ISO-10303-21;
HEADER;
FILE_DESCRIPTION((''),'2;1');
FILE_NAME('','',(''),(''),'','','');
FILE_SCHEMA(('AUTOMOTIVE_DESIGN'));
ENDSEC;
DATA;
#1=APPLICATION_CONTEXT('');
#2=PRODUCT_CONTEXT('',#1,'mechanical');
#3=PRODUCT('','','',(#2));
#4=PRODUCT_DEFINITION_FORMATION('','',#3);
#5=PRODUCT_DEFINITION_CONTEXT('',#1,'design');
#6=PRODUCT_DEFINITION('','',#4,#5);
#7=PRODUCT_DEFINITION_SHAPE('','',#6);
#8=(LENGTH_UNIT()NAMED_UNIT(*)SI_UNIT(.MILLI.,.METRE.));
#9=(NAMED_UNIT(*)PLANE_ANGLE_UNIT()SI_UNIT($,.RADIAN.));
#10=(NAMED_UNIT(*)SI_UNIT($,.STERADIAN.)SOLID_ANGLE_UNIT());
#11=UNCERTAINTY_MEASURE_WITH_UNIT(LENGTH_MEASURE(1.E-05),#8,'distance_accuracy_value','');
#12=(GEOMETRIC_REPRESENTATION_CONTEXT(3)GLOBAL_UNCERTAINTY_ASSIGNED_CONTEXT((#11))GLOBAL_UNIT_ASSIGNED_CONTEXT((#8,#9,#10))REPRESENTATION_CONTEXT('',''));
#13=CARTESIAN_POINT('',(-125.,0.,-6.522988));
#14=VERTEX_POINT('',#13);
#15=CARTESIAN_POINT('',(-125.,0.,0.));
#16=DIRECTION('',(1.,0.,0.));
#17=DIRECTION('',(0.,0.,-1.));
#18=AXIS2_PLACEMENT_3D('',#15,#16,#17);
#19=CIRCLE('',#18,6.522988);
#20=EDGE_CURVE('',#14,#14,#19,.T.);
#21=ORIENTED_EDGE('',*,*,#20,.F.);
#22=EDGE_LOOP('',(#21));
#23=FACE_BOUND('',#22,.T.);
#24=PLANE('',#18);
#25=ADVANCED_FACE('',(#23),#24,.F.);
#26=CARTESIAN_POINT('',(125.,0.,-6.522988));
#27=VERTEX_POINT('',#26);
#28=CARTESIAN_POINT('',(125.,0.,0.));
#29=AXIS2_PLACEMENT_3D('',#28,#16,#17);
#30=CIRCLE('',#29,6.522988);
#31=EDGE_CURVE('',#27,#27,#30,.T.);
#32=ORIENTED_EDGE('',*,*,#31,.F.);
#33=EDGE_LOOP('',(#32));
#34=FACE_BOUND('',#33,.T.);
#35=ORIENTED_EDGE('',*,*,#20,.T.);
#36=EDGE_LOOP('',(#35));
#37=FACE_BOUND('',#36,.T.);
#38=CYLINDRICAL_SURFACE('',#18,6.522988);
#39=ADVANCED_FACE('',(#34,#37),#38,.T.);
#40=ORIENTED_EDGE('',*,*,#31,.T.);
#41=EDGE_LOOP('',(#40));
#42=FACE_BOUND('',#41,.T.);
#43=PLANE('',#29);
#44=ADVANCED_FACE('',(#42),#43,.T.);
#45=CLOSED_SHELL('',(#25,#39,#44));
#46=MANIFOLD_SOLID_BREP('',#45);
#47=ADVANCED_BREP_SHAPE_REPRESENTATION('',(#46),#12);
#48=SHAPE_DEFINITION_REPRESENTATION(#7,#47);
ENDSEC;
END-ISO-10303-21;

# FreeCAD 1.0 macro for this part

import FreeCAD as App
import Part
import Sketcher

doc = App.newDocument("Part")
params = doc.addObject("Spreadsheet::Sheet", "Params")
for row, (alias, value) in enumerate([
    ("pad1_length", "125 mm"),
    ("pad1_length2", "125 mm"),
], start=1):
    params.set(f"A{row}", alias)
    params.set(f"B{row}", "=" + value)
    params.setAlias(f"B{row}", alias)

body = doc.addObject("PartDesign::Body", "Body")

# Sketch on YZ plane
sketch1 = body.newObject("Sketcher::SketchObject", "Sketch")
sketch1.AttachmentSupport = (doc.getObject("YZ_Plane"), [""])
sketch1.MapMode = "FlatFace"
sketch1.addGeometry(Part.Circle(App.Vector(0, 0, 0), App.Vector(0, 0, 1), 6.522988), False)
sketch1.addConstraint(Sketcher.Constraint("Coincident", 0, 3, -1, 1))
sketch1.addConstraint(Sketcher.Constraint("Diameter", 0, 13.045977))
pad1 = body.newObject("PartDesign::Pad", "Pad")
pad1.Profile = sketch1
pad1.Type = "TwoLengths"
pad1.setExpression("Length", "Params.pad1_length")
pad1.setExpression("Length2", "Params.pad1_length2")

doc.recompute()
